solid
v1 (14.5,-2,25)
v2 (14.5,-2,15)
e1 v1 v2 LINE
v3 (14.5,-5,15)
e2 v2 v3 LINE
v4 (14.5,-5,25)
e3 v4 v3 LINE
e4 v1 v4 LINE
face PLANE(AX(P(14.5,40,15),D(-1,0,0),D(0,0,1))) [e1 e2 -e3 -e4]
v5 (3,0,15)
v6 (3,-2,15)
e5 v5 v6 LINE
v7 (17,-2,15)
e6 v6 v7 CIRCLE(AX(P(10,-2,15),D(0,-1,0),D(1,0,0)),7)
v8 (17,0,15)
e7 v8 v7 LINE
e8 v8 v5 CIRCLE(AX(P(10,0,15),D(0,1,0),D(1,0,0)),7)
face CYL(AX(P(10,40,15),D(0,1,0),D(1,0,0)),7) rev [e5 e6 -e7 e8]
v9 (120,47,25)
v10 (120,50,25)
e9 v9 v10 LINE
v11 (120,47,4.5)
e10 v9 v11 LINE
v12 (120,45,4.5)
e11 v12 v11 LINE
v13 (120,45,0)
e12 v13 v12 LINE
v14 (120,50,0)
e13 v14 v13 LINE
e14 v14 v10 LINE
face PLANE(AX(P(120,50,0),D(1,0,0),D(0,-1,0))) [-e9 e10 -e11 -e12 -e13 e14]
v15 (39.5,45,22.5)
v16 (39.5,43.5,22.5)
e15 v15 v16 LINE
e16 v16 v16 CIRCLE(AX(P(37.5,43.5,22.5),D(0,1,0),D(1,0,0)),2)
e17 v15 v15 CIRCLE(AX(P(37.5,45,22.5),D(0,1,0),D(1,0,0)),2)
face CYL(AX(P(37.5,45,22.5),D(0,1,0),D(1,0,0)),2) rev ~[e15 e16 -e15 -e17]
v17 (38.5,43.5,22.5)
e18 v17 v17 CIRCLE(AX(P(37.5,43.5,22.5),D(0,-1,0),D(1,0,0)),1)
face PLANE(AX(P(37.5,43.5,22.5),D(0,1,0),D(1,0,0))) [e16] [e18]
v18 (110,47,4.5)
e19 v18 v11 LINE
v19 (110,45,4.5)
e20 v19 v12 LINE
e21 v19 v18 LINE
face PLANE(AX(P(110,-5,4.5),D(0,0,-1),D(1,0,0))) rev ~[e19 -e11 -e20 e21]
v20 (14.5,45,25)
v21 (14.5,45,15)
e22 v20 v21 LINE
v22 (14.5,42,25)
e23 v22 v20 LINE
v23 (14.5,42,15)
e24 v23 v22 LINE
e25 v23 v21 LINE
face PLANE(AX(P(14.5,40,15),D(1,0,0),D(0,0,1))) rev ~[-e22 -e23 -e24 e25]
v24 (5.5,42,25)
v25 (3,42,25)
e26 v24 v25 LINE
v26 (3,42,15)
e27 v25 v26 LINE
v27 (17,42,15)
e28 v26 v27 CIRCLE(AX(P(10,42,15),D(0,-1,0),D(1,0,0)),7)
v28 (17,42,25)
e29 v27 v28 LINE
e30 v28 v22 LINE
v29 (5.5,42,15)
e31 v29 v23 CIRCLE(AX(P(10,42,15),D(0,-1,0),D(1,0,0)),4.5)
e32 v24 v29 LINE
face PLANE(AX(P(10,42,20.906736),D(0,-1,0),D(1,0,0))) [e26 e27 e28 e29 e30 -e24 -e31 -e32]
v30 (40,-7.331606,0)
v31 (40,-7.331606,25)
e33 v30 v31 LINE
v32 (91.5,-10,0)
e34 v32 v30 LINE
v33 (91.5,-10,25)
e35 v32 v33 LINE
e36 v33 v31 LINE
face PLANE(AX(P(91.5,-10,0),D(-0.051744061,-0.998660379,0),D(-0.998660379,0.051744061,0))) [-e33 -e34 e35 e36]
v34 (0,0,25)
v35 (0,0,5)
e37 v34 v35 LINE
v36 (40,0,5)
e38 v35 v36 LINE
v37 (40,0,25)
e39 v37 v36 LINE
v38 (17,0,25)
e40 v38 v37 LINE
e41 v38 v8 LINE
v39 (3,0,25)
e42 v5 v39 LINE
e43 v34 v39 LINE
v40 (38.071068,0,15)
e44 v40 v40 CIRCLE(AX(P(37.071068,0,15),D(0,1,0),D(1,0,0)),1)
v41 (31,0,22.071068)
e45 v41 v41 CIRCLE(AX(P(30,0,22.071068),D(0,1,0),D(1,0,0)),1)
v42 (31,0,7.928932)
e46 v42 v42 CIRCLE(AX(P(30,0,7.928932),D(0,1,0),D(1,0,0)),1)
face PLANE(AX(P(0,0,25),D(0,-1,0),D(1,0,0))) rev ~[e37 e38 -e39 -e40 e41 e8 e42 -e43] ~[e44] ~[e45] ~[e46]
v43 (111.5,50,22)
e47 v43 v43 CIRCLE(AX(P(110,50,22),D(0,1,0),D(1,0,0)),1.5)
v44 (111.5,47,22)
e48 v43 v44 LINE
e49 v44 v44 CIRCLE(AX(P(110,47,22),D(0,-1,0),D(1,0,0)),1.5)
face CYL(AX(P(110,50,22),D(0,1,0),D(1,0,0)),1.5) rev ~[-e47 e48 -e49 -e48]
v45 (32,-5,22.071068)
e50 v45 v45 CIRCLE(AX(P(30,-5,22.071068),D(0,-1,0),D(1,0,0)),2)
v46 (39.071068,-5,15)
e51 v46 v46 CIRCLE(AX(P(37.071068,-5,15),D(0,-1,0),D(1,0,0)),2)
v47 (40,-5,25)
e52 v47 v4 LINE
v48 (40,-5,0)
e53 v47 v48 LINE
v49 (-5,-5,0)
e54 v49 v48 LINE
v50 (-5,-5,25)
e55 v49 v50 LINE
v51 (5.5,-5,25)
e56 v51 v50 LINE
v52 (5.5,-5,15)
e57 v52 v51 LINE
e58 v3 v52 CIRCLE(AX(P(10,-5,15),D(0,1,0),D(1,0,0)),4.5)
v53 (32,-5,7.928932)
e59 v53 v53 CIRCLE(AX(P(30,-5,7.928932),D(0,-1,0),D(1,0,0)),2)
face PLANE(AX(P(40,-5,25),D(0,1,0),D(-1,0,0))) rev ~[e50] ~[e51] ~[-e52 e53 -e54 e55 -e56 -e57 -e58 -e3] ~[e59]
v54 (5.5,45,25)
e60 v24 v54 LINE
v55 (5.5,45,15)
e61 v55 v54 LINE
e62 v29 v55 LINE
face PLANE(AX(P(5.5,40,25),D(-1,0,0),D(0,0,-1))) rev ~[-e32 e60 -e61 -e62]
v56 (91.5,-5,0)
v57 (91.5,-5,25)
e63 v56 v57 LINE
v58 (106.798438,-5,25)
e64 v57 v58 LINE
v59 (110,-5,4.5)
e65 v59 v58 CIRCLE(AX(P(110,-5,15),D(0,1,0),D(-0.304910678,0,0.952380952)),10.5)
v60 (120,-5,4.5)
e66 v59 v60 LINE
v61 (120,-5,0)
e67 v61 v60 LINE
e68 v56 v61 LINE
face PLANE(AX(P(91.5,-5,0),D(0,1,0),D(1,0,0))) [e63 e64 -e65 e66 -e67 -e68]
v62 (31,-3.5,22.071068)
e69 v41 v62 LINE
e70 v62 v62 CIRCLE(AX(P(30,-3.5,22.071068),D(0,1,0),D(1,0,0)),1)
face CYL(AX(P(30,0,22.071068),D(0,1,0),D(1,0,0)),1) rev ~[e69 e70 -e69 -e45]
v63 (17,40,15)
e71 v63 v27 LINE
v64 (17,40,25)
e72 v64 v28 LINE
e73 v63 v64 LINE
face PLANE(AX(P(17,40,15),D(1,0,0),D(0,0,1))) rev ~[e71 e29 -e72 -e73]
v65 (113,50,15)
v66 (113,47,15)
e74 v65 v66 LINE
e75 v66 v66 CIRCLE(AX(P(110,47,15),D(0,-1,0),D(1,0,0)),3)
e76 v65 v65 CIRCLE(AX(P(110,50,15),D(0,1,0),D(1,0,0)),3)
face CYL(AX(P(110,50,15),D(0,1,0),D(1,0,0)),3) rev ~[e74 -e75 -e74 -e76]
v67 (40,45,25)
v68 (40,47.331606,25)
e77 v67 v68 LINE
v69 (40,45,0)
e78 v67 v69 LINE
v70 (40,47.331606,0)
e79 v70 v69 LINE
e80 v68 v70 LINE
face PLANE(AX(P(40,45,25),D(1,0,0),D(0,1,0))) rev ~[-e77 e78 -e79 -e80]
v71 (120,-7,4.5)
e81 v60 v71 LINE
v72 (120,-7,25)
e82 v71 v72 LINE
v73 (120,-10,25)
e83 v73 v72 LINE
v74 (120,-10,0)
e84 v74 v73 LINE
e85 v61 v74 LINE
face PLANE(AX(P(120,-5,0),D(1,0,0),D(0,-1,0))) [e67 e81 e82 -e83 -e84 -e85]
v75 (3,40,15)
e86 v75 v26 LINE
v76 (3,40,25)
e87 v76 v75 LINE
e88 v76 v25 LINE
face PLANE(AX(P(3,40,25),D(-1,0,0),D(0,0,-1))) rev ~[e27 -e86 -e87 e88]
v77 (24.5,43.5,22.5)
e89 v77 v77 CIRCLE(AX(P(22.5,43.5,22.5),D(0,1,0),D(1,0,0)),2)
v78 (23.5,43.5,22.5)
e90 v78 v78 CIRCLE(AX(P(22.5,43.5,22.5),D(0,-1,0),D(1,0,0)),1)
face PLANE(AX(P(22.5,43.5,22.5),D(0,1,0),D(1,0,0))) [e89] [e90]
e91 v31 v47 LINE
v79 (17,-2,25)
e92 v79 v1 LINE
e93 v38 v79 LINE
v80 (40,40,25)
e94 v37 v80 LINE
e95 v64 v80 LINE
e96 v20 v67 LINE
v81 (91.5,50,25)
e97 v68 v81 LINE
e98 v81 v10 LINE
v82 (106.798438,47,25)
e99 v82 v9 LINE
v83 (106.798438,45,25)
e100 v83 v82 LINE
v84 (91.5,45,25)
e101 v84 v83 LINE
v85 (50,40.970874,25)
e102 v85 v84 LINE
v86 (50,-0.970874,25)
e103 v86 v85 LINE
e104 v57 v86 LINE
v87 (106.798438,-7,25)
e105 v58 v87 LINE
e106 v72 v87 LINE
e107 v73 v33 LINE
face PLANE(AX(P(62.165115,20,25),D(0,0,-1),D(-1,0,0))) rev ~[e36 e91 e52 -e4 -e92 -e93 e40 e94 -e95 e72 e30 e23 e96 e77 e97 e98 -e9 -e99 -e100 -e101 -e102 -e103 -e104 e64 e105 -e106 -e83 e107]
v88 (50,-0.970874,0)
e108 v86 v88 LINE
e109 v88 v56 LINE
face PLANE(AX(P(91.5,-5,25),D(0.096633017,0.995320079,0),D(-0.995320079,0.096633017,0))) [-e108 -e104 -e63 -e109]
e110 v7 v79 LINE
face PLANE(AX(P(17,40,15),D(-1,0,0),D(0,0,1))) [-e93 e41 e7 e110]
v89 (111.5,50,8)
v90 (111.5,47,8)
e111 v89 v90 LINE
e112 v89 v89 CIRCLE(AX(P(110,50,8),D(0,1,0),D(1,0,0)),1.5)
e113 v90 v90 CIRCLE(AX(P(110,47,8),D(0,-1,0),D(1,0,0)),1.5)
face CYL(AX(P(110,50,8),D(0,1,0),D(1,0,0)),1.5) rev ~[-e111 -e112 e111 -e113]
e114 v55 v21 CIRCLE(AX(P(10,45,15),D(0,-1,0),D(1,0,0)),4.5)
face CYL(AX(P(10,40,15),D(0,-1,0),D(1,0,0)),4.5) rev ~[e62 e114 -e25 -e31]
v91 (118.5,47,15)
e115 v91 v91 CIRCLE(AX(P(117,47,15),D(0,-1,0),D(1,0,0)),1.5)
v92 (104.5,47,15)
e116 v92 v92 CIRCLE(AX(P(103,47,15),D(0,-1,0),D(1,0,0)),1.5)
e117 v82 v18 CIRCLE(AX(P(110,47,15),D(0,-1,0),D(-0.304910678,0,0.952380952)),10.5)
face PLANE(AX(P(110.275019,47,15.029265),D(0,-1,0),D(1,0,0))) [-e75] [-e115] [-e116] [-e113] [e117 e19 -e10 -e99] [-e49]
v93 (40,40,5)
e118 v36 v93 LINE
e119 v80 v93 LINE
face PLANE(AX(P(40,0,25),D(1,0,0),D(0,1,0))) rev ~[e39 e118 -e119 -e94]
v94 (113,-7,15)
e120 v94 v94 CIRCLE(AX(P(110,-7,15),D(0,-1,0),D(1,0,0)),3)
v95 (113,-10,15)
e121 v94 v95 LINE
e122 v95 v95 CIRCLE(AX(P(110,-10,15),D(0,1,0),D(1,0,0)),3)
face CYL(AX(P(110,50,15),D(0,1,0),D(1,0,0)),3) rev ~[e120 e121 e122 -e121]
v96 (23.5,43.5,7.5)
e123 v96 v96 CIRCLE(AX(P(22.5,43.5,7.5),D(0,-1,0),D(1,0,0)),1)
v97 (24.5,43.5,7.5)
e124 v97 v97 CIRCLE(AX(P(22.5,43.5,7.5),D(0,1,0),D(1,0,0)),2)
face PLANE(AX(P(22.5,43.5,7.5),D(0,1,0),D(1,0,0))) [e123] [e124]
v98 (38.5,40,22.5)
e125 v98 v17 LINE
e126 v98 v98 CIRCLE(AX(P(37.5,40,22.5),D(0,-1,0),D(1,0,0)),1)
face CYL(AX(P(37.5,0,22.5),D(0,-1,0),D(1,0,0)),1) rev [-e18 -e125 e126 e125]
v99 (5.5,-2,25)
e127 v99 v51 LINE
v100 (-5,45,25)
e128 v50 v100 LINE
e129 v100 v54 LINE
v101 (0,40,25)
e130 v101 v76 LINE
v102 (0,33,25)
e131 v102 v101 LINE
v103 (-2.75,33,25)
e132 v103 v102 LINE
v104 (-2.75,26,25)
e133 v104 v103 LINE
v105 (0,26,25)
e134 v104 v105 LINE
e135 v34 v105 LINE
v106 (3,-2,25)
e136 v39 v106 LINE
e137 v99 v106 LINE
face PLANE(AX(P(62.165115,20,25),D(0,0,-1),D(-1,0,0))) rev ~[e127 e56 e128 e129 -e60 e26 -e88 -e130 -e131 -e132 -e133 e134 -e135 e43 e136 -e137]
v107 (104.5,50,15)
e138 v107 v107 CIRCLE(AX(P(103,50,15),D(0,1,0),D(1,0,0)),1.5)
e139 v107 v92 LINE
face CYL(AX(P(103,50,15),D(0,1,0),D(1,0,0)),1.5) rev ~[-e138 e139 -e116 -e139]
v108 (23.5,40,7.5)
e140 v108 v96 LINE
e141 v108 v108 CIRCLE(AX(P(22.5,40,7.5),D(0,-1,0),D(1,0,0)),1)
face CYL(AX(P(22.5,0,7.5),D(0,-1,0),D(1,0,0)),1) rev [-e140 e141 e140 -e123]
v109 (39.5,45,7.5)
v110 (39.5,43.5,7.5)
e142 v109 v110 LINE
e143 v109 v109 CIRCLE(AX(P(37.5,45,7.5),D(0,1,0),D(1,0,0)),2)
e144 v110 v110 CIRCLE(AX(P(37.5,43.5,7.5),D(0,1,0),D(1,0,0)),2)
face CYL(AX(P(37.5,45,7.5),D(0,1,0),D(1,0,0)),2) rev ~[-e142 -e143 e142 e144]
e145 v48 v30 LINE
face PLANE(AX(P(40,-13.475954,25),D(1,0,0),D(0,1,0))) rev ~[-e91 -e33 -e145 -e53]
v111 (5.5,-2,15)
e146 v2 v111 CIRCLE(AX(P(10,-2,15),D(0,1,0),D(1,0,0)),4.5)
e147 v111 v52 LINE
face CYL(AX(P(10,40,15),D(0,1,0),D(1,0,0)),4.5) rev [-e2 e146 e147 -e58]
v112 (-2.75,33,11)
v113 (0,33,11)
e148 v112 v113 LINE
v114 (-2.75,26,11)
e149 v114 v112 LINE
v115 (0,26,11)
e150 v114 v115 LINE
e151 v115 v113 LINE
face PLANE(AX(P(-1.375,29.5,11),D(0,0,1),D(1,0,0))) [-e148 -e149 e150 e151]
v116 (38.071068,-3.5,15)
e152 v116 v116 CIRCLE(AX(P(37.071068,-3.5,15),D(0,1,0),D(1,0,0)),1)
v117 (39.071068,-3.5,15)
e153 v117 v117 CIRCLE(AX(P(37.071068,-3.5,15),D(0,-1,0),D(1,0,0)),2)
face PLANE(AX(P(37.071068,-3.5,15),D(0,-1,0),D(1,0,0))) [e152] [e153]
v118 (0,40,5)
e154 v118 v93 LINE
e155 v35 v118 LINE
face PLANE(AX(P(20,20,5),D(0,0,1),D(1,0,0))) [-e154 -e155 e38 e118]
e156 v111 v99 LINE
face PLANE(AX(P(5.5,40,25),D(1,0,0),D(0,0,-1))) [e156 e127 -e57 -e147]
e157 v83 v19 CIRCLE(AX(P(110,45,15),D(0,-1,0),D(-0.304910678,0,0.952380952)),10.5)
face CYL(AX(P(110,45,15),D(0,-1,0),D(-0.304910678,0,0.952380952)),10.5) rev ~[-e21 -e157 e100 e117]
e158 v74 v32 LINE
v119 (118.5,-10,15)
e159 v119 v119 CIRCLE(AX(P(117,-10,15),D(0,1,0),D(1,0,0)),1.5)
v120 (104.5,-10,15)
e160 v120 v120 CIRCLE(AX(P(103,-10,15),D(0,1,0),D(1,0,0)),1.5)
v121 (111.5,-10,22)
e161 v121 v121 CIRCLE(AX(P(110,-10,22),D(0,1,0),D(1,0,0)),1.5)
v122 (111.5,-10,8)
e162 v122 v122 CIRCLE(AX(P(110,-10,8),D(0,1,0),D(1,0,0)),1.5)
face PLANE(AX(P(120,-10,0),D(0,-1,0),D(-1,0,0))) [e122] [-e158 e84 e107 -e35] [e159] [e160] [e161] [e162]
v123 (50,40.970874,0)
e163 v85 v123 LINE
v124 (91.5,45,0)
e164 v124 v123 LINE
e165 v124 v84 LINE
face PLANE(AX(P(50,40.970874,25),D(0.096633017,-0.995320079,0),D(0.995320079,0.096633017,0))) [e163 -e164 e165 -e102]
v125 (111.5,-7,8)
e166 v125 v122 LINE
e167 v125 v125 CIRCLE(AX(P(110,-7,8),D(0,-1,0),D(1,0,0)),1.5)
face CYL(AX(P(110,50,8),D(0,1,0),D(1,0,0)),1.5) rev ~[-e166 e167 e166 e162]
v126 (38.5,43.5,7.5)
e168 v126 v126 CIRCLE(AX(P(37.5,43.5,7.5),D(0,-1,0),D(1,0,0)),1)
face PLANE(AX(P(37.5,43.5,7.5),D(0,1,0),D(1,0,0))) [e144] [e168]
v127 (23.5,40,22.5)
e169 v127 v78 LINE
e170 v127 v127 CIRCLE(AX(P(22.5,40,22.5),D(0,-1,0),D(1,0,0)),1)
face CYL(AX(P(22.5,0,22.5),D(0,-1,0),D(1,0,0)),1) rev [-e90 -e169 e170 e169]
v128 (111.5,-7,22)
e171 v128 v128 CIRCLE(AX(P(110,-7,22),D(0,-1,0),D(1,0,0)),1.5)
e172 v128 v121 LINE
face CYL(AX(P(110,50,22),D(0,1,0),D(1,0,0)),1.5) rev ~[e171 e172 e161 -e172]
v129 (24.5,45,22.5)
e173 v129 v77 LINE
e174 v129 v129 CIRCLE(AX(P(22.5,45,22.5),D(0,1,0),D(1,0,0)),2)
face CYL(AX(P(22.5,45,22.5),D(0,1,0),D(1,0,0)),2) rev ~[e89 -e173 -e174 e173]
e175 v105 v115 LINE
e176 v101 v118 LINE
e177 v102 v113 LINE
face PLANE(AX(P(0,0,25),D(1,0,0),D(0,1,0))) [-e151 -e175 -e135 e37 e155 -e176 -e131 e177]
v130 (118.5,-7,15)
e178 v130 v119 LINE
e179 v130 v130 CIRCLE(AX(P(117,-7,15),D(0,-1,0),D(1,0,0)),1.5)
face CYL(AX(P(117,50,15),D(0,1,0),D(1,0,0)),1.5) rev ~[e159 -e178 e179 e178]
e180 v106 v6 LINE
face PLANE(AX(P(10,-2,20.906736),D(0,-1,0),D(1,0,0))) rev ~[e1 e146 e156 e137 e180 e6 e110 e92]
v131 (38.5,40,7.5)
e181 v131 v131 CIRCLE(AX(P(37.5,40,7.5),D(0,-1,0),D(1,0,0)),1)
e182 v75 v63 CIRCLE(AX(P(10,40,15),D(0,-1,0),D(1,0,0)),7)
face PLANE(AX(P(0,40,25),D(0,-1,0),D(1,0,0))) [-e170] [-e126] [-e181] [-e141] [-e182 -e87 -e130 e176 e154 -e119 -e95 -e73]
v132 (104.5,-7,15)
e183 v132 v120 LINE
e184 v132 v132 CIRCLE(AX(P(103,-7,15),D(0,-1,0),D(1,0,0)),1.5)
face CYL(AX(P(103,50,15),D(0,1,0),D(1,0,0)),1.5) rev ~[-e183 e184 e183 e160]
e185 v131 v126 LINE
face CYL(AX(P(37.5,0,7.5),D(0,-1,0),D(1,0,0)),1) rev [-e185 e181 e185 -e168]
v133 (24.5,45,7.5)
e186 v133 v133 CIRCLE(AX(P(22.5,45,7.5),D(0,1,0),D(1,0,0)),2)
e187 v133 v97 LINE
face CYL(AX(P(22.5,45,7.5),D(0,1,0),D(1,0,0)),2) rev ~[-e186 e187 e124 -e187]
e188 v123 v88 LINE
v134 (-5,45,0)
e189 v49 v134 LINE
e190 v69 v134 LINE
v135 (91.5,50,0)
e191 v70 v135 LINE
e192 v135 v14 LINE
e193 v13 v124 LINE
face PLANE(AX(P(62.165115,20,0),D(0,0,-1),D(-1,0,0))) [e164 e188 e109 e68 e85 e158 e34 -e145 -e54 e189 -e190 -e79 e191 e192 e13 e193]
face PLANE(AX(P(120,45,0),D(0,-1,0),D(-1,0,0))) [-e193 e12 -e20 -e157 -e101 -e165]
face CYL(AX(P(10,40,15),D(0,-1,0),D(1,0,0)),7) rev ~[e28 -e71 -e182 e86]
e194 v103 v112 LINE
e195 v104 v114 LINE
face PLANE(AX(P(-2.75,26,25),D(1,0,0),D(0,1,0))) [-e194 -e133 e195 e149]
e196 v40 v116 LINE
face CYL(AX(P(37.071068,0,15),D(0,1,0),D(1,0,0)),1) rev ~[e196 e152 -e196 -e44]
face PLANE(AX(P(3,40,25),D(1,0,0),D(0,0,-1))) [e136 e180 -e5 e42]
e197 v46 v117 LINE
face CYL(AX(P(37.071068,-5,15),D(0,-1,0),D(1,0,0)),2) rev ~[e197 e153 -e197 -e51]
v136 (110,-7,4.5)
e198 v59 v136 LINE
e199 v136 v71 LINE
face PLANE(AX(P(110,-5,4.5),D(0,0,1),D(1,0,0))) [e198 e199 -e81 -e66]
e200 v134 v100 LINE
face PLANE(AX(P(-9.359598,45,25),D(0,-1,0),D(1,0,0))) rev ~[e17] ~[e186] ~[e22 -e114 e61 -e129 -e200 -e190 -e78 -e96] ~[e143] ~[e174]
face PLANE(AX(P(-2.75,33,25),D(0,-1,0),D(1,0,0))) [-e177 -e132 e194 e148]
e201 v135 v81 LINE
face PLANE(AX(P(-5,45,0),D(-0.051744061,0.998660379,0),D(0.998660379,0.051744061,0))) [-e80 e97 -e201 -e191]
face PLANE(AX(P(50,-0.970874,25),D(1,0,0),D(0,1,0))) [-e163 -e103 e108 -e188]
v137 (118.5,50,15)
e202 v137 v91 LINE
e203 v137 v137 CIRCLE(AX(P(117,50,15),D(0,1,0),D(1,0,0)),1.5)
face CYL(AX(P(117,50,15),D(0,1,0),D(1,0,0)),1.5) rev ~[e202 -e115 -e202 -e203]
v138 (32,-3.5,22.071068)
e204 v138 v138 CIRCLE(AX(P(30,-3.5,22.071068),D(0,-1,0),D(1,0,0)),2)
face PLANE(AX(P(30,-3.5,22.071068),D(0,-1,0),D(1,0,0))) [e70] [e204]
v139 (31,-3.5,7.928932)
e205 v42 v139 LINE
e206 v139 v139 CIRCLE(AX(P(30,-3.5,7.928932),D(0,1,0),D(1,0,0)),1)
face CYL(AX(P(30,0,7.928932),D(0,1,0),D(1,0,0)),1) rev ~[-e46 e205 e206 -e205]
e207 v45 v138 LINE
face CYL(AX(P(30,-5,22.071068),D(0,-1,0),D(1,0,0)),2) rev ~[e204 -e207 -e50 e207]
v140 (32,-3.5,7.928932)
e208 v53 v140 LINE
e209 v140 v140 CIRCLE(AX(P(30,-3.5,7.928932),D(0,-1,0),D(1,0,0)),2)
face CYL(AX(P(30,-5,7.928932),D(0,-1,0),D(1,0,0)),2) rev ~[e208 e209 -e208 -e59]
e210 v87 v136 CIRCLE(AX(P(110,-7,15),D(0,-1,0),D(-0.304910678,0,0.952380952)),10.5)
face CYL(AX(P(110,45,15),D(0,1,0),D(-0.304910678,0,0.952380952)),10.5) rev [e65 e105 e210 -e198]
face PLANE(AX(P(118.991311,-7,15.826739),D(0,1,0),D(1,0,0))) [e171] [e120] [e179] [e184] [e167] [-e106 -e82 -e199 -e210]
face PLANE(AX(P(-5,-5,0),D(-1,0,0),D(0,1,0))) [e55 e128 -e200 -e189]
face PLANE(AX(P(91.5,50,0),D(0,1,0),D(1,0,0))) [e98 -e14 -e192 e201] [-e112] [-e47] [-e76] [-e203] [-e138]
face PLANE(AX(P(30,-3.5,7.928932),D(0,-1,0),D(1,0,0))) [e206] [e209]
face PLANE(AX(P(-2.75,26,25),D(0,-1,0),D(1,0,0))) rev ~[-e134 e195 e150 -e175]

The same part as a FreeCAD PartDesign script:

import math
import FreeCAD as App
import Part
import Sketcher

V = App.Vector

doc = App.newDocument("Part")
body = doc.addObject("PartDesign::Body", "Body")

# Sketch on XY plane
sketch1 = doc.addObject("Sketcher::SketchObject", "Sketch")
body.addObject(sketch1)
sketch1.AttachmentSupport = (doc.XY_Plane, [""])
sketch1.MapMode = "FlatFace"
sketch1.addGeometry([
    Part.LineSegment(V(92, 50, 0), V(-5, 45, 0)),  # 0
    Part.LineSegment(V(-5, 45, 0), V(-5, -5, 0)),  # 1
    Part.LineSegment(V(-5, -5, 0), V(92, -10, 0)),  # 2
    Part.LineSegment(V(92, -10, 0), V(120, -10, 0)),  # 3
    Part.LineSegment(V(120, -10, 0), V(120, -5, 0)),  # 4
    Part.LineSegment(V(120, -5, 0), V(92, -5, 0)),  # 5
    Part.LineSegment(V(92, -5, 0), V(92, 45, 0)),  # 6
    Part.LineSegment(V(92, 45, 0), V(120, 45, 0)),  # 7
    Part.LineSegment(V(120, 45, 0), V(120, 50, 0)),  # 8
    Part.LineSegment(V(120, 50, 0), V(92, 50, 0)),  # 9
], False)
sketch1.addConstraint([
    Sketcher.Constraint("Coincident", 0, 2, 1, 1),
    Sketcher.Constraint("Coincident", 1, 2, 2, 1),
    Sketcher.Constraint("Coincident", 2, 2, 3, 1),
    Sketcher.Constraint("Coincident", 3, 2, 4, 1),
    Sketcher.Constraint("Coincident", 4, 2, 5, 1),
    Sketcher.Constraint("Coincident", 5, 2, 6, 1),
    Sketcher.Constraint("Coincident", 6, 2, 7, 1),
    Sketcher.Constraint("Coincident", 7, 2, 8, 1),
    Sketcher.Constraint("Coincident", 8, 2, 9, 1),
    Sketcher.Constraint("Coincident", 9, 2, 0, 1),
    Sketcher.Constraint("Vertical", 1),
    Sketcher.Constraint("Horizontal", 3),
    Sketcher.Constraint("Vertical", 4),
    Sketcher.Constraint("Horizontal", 5),
    Sketcher.Constraint("Vertical", 6),
    Sketcher.Constraint("Horizontal", 7),
    Sketcher.Constraint("Vertical", 8),
    Sketcher.Constraint("Horizontal", 9),
    Sketcher.Constraint("Horizontal", 1, 2, 4, 2),
    Sketcher.Constraint("Horizontal", 0, 2, 6, 2),
    Sketcher.Constraint("Vertical", 2, 2, 5, 2),
    Sketcher.Constraint("Vertical", 4, 2, 7, 2),
    Sketcher.Constraint("Vertical", 6, 2, 9, 2),
    Sketcher.Constraint("Equal", 4, 8),
    Sketcher.Constraint("DistanceY", 1, 2, 1, 1, 50.0),
    Sketcher.Constraint("DistanceY", 4, 1, 4, 2, 5.0),
    Sketcher.Constraint("DistanceX", 3, 1, 3, 2, 28.5),
    Sketcher.Constraint("DistanceX", 0, 2, -1, 1, 5.0),
    Sketcher.Constraint("DistanceY", -1, 1, 0, 2, 45.0),
    Sketcher.Constraint("DistanceX", -1, 1, 3, 2, 120.0),
])
pad1 = doc.addObject("PartDesign::Pad", "Pad")
body.addObject(pad1)
pad1.Profile = sketch1
pad1.Length = 25

# Sketch on XY plane
sketch2 = doc.addObject("Sketcher::SketchObject", "Sketch001")
body.addObject(sketch2)
sketch2.AttachmentSupport = (doc.XY_Plane, [""])
sketch2.MapMode = "FlatFace"
sketch2.AttachmentOffset = App.Placement(V(0, 0, 25), App.Rotation())
sketch2.addGeometry([
    Part.LineSegment(V(0, 40, 0), V(0, 0, 0)),
    Part.LineSegment(V(0, 0, 0), V(40, 0, 0)),
    Part.LineSegment(V(40, 0, 0), V(40, 40, 0)),
    Part.LineSegment(V(40, 40, 0), V(0, 40, 0)),
], False)
sketch2.addConstraint([
    Sketcher.Constraint("Coincident", 0, 2, 1, 1),
    Sketcher.Constraint("Coincident", 1, 2, 2, 1),
    Sketcher.Constraint("Coincident", 2, 2, 3, 1),
    Sketcher.Constraint("Coincident", 3, 2, 0, 1),
    Sketcher.Constraint("Vertical", 0),
    Sketcher.Constraint("Horizontal", 1),
    Sketcher.Constraint("Vertical", 2),
    Sketcher.Constraint("Horizontal", 3),
    Sketcher.Constraint("Coincident", 0, 2, -1, 1),
    Sketcher.Constraint("Equal", 3, 0),
    Sketcher.Constraint("DistanceX", 1, 1, 1, 2, 40.0),
])
pocket1 = doc.addObject("PartDesign::Pocket", "Pocket")
body.addObject(pocket1)
pocket1.Profile = sketch2
pocket1.Length = 20

# Sketch on XZ plane
sketch3 = doc.addObject("Sketcher::SketchObject", "Sketch002")
body.addObject(sketch3)
sketch3.AttachmentSupport = (doc.XZ_Plane, [""])
sketch3.MapMode = "FlatFace"
sketch3.AttachmentOffset = App.Placement(V(0, 0, -40), App.Rotation())
sketch3.addGeometry([
    Part.LineSegment(V(17, 15, 0), V(17, 25, 0)),
    Part.LineSegment(V(17, 25, 0), V(3, 25, 0)),
    Part.LineSegment(V(3, 25, 0), V(3, 15, 0)),
    Part.ArcOfCircle(Part.Circle(V(10, 15, 0), V(0, 0, 1), 7), math.radians(180), math.radians(360)),
], False)
sketch3.addConstraint([
    Sketcher.Constraint("Coincident", 0, 2, 1, 1),
    Sketcher.Constraint("Coincident", 1, 2, 2, 1),
    Sketcher.Constraint("Tangent", 2, 2, 3, 1),
    Sketcher.Constraint("Tangent", 3, 2, 0, 1),
    Sketcher.Constraint("Vertical", 0),
    Sketcher.Constraint("Horizontal", 1),
    Sketcher.Constraint("Vertical", 2),
    Sketcher.Constraint("Radius", 3, 7.0),
    Sketcher.Constraint("DistanceY", 0, 1, 0, 2, 10.0),
    Sketcher.Constraint("DistanceX", -1, 1, 3, 3, 10.0),
    Sketcher.Constraint("DistanceY", -1, 1, 3, 3, 15.0),
])
pocket2 = doc.addObject("PartDesign::Pocket", "Pocket001")
body.addObject(pocket2)
pocket2.Profile = sketch3
pocket2.Type = "TwoLengths"
pocket2.Length = 42
pocket2.Length2 = 2
pocket2.Reversed = True

# Sketch on XZ plane
sketch4 = doc.addObject("Sketcher::SketchObject", "Sketch003")
body.addObject(sketch4)
sketch4.AttachmentSupport = (doc.XZ_Plane, [""])
sketch4.MapMode = "FlatFace"
sketch4.AttachmentOffset = App.Placement(V(0, 0, -40), App.Rotation())
sketch4.addGeometry([
    Part.ArcOfCircle(Part.Circle(V(10, 15, 0), V(0, 0, 1), 4.5), math.radians(180), math.radians(360)),
    Part.LineSegment(V(14.5, 15, 0), V(14.5, 25, 0)),
    Part.LineSegment(V(14.5, 25, 0), V(5.5, 25, 0)),
    Part.LineSegment(V(5.5, 25, 0), V(5.5, 15, 0)),
], False)
sketch4.addConstraint([
    Sketcher.Constraint("Tangent", 0, 2, 1, 1),
    Sketcher.Constraint("Coincident", 1, 2, 2, 1),
    Sketcher.Constraint("Coincident", 2, 2, 3, 1),
    Sketcher.Constraint("Tangent", 3, 2, 0, 1),
    Sketcher.Constraint("Vertical", 1),
    Sketcher.Constraint("Horizontal", 2),
    Sketcher.Constraint("Vertical", 3),
    Sketcher.Constraint("Radius", 0, 4.5),
    Sketcher.Constraint("DistanceY", 1, 1, 1, 2, 10.0),
    Sketcher.Constraint("DistanceX", -1, 1, 0, 3, 10.0),
    Sketcher.Constraint("DistanceY", -1, 1, 0, 3, 15.0),
])
pocket3 = doc.addObject("PartDesign::Pocket", "Pocket002")
body.addObject(pocket3)
pocket3.Profile = sketch4
pocket3.Type = "ThroughAll"
pocket3.Midplane = True

# Sketch on XY plane
sketch5 = doc.addObject("Sketcher::SketchObject", "Sketch004")
body.addObject(sketch5)
sketch5.AttachmentSupport = (doc.XY_Plane, [""])
sketch5.MapMode = "FlatFace"
sketch5.AttachmentOffset = App.Placement(V(0, 0, 25), App.Rotation())
sketch5.addGeometry([
    Part.LineSegment(V(50, -1, 0), V(91.5, -5, 0)),  # 0
    Part.LineSegment(V(91.5, -5, 0), V(91.5, 45, 0)),  # 1
    Part.LineSegment(V(91.5, 45, 0), V(50, 41, 0)),  # 2
    Part.LineSegment(V(50, 41, 0), V(50, -1, 0)),  # 3
    Part.LineSegment(V(40, 45, 0), V(40, 47.3, 0)),  # 4
    Part.LineSegment(V(40, 47.3, 0), V(0.6, 66, 0)),  # 5
    Part.LineSegment(V(0.6, 66, 0), V(-9.4, 45, 0)),  # 6
    Part.LineSegment(V(-9.4, 45, 0), V(40, 45, 0)),  # 7
    Part.LineSegment(V(40, -5, 0), V(-5, -5, 0)),  # 8
    Part.LineSegment(V(-5, -5, 0), V(-6.2, -9.2, 0)),  # 9
    Part.LineSegment(V(-6.2, -9.2, 0), V(40, -13.5, 0)),  # 10
    Part.LineSegment(V(40, -13.5, 0), V(40, -5, 0)),  # 11
], False)
sketch5.addConstraint([
    Sketcher.Constraint("Coincident", 0, 2, 1, 1),
    Sketcher.Constraint("Coincident", 1, 2, 2, 1),
    Sketcher.Constraint("Coincident", 2, 2, 3, 1),
    Sketcher.Constraint("Coincident", 3, 2, 0, 1),
    Sketcher.Constraint("Coincident", 4, 2, 5, 1),
    Sketcher.Constraint("Coincident", 5, 2, 6, 1),
    Sketcher.Constraint("Coincident", 6, 2, 7, 1),
    Sketcher.Constraint("Coincident", 7, 2, 4, 1),
    Sketcher.Constraint("Coincident", 8, 2, 9, 1),
    Sketcher.Constraint("Coincident", 9, 2, 10, 1),
    Sketcher.Constraint("Coincident", 10, 2, 11, 1),
    Sketcher.Constraint("Coincident", 11, 2, 8, 1),
    Sketcher.Constraint("Vertical", 1),
    Sketcher.Constraint("Vertical", 3),
    Sketcher.Constraint("Vertical", 4),
    Sketcher.Constraint("Horizontal", 7),
    Sketcher.Constraint("Horizontal", 8),
    Sketcher.Constraint("Vertical", 11),
    Sketcher.Constraint("Perpendicular", 5, 6),
    Sketcher.Constraint("Horizontal", 1, 2, 6, 2),
    Sketcher.Constraint("Horizontal", 0, 2, 8, 2),
    Sketcher.Constraint("Vertical", 7, 2, 10, 2),
    Sketcher.Constraint("Equal", 0, 2),
    Sketcher.Constraint("DistanceX", 8, 2, 8, 1, 45.0),
    Sketcher.Constraint("DistanceY", 1, 1, 1, 2, 50.0),
    Sketcher.Constraint("DistanceY", 0, 2, -1, 1, 5.0),
    Sketcher.Constraint("DistanceX", -1, 1, 2, 2, 50.0),
    Sketcher.Constraint("DistanceX", -1, 1, 4, 2, 40.0),
    Sketcher.Constraint("DistanceX", -1, 1, 0, 2, 91.5),
    Sketcher.Constraint("Distance", 0, 41.69513),
    Sketcher.Constraint("Distance", 6, 23.270611),
    Sketcher.Constraint("Distance", 9, 4.413391),
    Sketcher.Constraint("DistanceX", 7, 1, 7, 2, 49.359598),
    Sketcher.Constraint("DistanceY", 4, 1, 4, 2, 2.331606),
    Sketcher.Constraint("DistanceY", 11, 1, 11, 2, 8.475954),
    Sketcher.Constraint("DistanceY", 9, 2, -1, 1, 9.24134),
])
pocket4 = doc.addObject("PartDesign::Pocket", "Pocket003")
body.addObject(pocket4)
pocket4.Profile = sketch5
pocket4.Type = "ThroughAll"

# Sketch on XZ plane
sketch6 = doc.addObject("Sketcher::SketchObject", "Sketch005")
body.addObject(sketch6)
sketch6.AttachmentSupport = (doc.XZ_Plane, [""])
sketch6.MapMode = "FlatFace"
sketch6.AttachmentOffset = App.Placement(V(0, 0, -50), App.Rotation())
sketch6.addGeometry([
    Part.Circle(V(110, 8, 0), V(0, 0, 1), 1.5),  # 0
    Part.Circle(V(110, 15, 0), V(0, 0, 1), 3),  # 1
    Part.Circle(V(117, 15, 0), V(0, 0, 1), 1.5),  # 2
    Part.Circle(V(110, 22, 0), V(0, 0, 1), 1.5),  # 3
    Part.Circle(V(103, 15, 0), V(0, 0, 1), 1.5),  # 4
], False)
sketch6.addConstraint([
    Sketcher.Constraint("Equal", 0, 2),
    Sketcher.Constraint("Equal", 2, 3),
    Sketcher.Constraint("Equal", 3, 4),
    Sketcher.Constraint("Horizontal", 1, 3, 2, 3),
    Sketcher.Constraint("Horizontal", 2, 3, 4, 3),
    Sketcher.Constraint("Vertical", 0, 3, 1, 3),
    Sketcher.Constraint("Vertical", 1, 3, 3, 3),
    Sketcher.Constraint("Diameter", 0, 3.0),
    Sketcher.Constraint("Diameter", 1, 6.0),
    Sketcher.Constraint("DistanceX", -1, 1, 0, 3, 110.0),
    Sketcher.Constraint("DistanceY", -1, 1, 0, 3, 8.0),
    Sketcher.Constraint("DistanceY", -1, 1, 1, 3, 15.0),
    Sketcher.Constraint("DistanceX", -1, 1, 2, 3, 117.0),
    Sketcher.Constraint("DistanceY", -1, 1, 3, 3, 22.0),
    Sketcher.Constraint("DistanceX", -1, 1, 4, 3, 103.0),
])
pocket5 = doc.addObject("PartDesign::Pocket", "Pocket004")
body.addObject(pocket5)
pocket5.Profile = sketch6
pocket5.Length = 61
pocket5.Reversed = True

# Sketch on XZ plane
sketch7 = doc.addObject("Sketcher::SketchObject", "Sketch006")
body.addObject(sketch7)
sketch7.AttachmentSupport = (doc.XZ_Plane, [""])
sketch7.MapMode = "FlatFace"
sketch7.AttachmentOffset = App.Placement(V(0, 0, -45), App.Rotation())
sketch7.addGeometry([
    Part.ArcOfCircle(Part.Circle(V(110, 15, 0), V(0, 0, 1), 10.5), math.radians(18), math.radians(72)),  # 0
    Part.LineSegment(V(113.2, 25, 0), V(106.8, 25, 0)),  # 1
    Part.ArcOfCircle(Part.Circle(V(110, 15, 0), V(0, 0, 1), 10.5), math.radians(108), math.radians(270)),  # 2
    Part.ArcOfCircle(Part.Circle(V(110, 15, 0), V(0, 0, 1), 10.5), math.radians(-90), math.radians(-18)),  # 3
    Part.LineSegment(V(120, 11.8, 0), V(120, 18.2, 0)),  # 4
    Part.Circle(V(110, 8, 0), V(0, 0, 1), 1.5),  # 5
    Part.Circle(V(103, 15, 0), V(0, 0, 1), 1.5),  # 6
    Part.Circle(V(110, 15, 0), V(0, 0, 1), 3),  # 7
    Part.Circle(V(117, 15, 0), V(0, 0, 1), 1.5),  # 8
    Part.Circle(V(110, 22, 0), V(0, 0, 1), 1.5),  # 9
    Part.LineSegment(V(132.3, 25.5, 0), V(110, 25.5, 0)),  # 10
    Part.ArcOfCircle(Part.Circle(V(110, 15, 0), V(0, 0, 1), 10.5), math.radians(72.25), math.radians(90)),  # 11
    Part.LineSegment(V(113.2, 25, 0), V(120, 25, 0)),  # 12
    Part.LineSegment(V(120, 25, 0), V(120, 18.2, 0)),  # 13
    Part.ArcOfCircle(Part.Circle(V(110, 15, 0), V(0, 0, 1), 10.5), math.radians(0), math.radians(17.75)),  # 14
    Part.ArcOfCircle(Part.Circle(V(110, 15, 0), V(0, 0, 1), 10.5), math.radians(-17.75), math.radians(0)),  # 15
    Part.LineSegment(V(120, 11.8, 0), V(120, 4.5, 0)),  # 16
    Part.LineSegment(V(120, 4.5, 0), V(132.3, 4.5, 0)),  # 17
    Part.LineSegment(V(132.3, 4.5, 0), V(132.3, 25.5, 0)),  # 18
], False)
sketch7.addConstraint([
    Sketcher.Constraint("Coincident", 0, 2, 1, 1),
    Sketcher.Constraint("Coincident", 1, 2, 2, 1),
    Sketcher.Constraint("Tangent", 2, 2, 3, 1),
    Sketcher.Constraint("Coincident", 3, 2, 4, 1),
    Sketcher.Constraint("Coincident", 4, 2, 0, 1),
    Sketcher.Constraint("Tangent", 10, 2, 11, 2),
    Sketcher.Constraint("Coincident", 11, 1, 12, 1),
    Sketcher.Constraint("Coincident", 12, 2, 13, 1),
    Sketcher.Constraint("Coincident", 13, 2, 14, 2),
    Sketcher.Constraint("Tangent", 14, 1, 15, 2),
    Sketcher.Constraint("Coincident", 15, 1, 16, 1),
    Sketcher.Constraint("Coincident", 16, 2, 17, 1),
    Sketcher.Constraint("Coincident", 17, 2, 18, 1),
    Sketcher.Constraint("Coincident", 18, 2, 10, 1),
    Sketcher.Constraint("Horizontal", 1),
    Sketcher.Constraint("Vertical", 4),
    Sketcher.Constraint("Horizontal", 10),
    Sketcher.Constraint("Horizontal", 12),
    Sketcher.Constraint("Vertical", 13),
    Sketcher.Constraint("Vertical", 16),
    Sketcher.Constraint("Horizontal", 17),
    Sketcher.Constraint("Vertical", 18),
    Sketcher.Constraint("Coincident", 2, 3, 0, 3),
    Sketcher.Constraint("Coincident", 7, 3, 0, 3),
    Sketcher.Constraint("Coincident", 11, 3, 0, 3),
    Sketcher.Constraint("Coincident", 14, 3, 0, 3),
    Sketcher.Constraint("Coincident", 11, 1, 0, 2),
    Sketcher.Constraint("Coincident", 13, 2, 4, 2),
    Sketcher.Constraint("Coincident", 15, 1, 3, 2),
    Sketcher.Constraint("Equal", 0, 2),
    Sketcher.Constraint("Equal", 2, 3),
    Sketcher.Constraint("Equal", 5, 6),
    Sketcher.Constraint("Equal", 6, 8),
    Sketcher.Constraint("Equal", 8, 9),
    Sketcher.Constraint("Horizontal", 3, 3, 6, 3),
    Sketcher.Constraint("Horizontal", 7, 3, 8, 3),
    Sketcher.Constraint("Horizontal", 15, 3, 14, 1),
    Sketcher.Constraint("Horizontal", 2, 2, 16, 2),
    Sketcher.Constraint("Vertical", 3, 3, 5, 3),
    Sketcher.Constraint("Vertical", 7, 3, 9, 3),
    Sketcher.Constraint("Vertical", 15, 3, 2, 2),
    Sketcher.Constraint("Equal", 1, 4),
    Sketcher.Constraint("Diameter", 5, 3.0),
    Sketcher.Constraint("Diameter", 7, 6.0),
    Sketcher.Constraint("Radius", 0, 10.5),
    Sketcher.Constraint("DistanceX", -1, 1, 0, 3, 110.0),
    Sketcher.Constraint("DistanceY", -1, 1, 0, 3, 15.0),
    Sketcher.Constraint("DistanceY", -1, 1, 5, 3, 8.0),
    Sketcher.Constraint("DistanceX", -1, 1, 6, 3, 103.0),
    Sketcher.Constraint("DistanceX", -1, 1, 8, 3, 117.0),
    Sketcher.Constraint("DistanceY", -1, 1, 9, 3, 22.0),
    Sketcher.Constraint("DistanceY", -1, 1, 0, 2, 25.0),
    Sketcher.Constraint("DistanceX", 10, 2, 10, 1, 22.305372),
])
pocket6 = doc.addObject("PartDesign::Pocket", "Pocket005")
body.addObject(pocket6)
pocket6.Profile = sketch7
pocket6.Type = "TwoLengths"
pocket6.Length = 52
pocket6.Length2 = 2
pocket6.Reversed = True

# Sketch on XZ plane
sketch8 = doc.addObject("Sketcher::SketchObject", "Sketch007")
body.addObject(sketch8)
sketch8.AttachmentSupport = (doc.XZ_Plane, [""])
sketch8.MapMode = "FlatFace"
sketch8.AttachmentOffset = App.Placement(V(0, 0, 5), App.Rotation())
sketch8.addGeometry([
    Part.LineSegment(V(110, 4, 0), V(110, 27, 0)),
    Part.LineSegment(V(110, 27, 0), V(128, 27, 0)),
    Part.LineSegment(V(128, 27, 0), V(128, 4, 0)),
    Part.LineSegment(V(128, 4, 0), V(110, 4, 0)),
], False)
sketch8.addConstraint([
    Sketcher.Constraint("Coincident", 0, 2, 1, 1),
    Sketcher.Constraint("Coincident", 1, 2, 2, 1),
    Sketcher.Constraint("Coincident", 2, 2, 3, 1),
    Sketcher.Constraint("Coincident", 3, 2, 0, 1),
    Sketcher.Constraint("Vertical", 0),
    Sketcher.Constraint("Horizontal", 1),
    Sketcher.Constraint("Vertical", 2),
    Sketcher.Constraint("Horizontal", 3),
    Sketcher.Constraint("DistanceX", -1, 1, 0, 2, 110.0),
    Sketcher.Constraint("DistanceY", -1, 1, 2, 2, 4.5),
    Sketcher.Constraint("DistanceX", 1, 1, 1, 2, 17.982621),
    Sketcher.Constraint("DistanceY", 0, 1, 0, 2, 22.653479),
])
pocket7 = doc.addObject("PartDesign::Pocket", "Pocket006")
body.addObject(pocket7)
pocket7.Profile = sketch8
pocket7.Type = "TwoLengths"
pocket7.Length = 52
pocket7.Length2 = 2

# Sketch on XZ plane
sketch9 = doc.addObject("Sketcher::SketchObject", "Sketch008")
body.addObject(sketch9)
sketch9.AttachmentSupport = (doc.XZ_Plane, [""])
sketch9.MapMode = "FlatFace"
sketch9.addGeometry([
    Part.Circle(V(37.5, 7.5, 0), V(0, 0, 1), 1),
    Part.Circle(V(37.5, 22.5, 0), V(0, 0, 1), 1),
    Part.Circle(V(22.5, 22.5, 0), V(0, 0, 1), 1),
    Part.Circle(V(22.5, 7.5, 0), V(0, 0, 1), 1),
], False)
sketch9.addConstraint([
    Sketcher.Constraint("Equal", 0, 1),
    Sketcher.Constraint("Equal", 1, 2),
    Sketcher.Constraint("Equal", 2, 3),
    Sketcher.Constraint("Horizontal", 1, 3, 2, 3),
    Sketcher.Constraint("Horizontal", 0, 3, 3, 3),
    Sketcher.Constraint("Vertical", 0, 3, 1, 3),
    Sketcher.Constraint("Vertical", 2, 3, 3, 3),
    Sketcher.Constraint("Diameter", 0, 2.0),
    Sketcher.Constraint("DistanceY", 0, 3, 1, 3, 15.0),
    Sketcher.Constraint("DistanceX", 2, 3, 1, 3, 15.0),
    Sketcher.Constraint("DistanceX", -1, 1, 0, 3, 37.5),
    Sketcher.Constraint("DistanceY", -1, 1, 0, 3, 7.5),
])
pocket8 = doc.addObject("PartDesign::Pocket", "Pocket007")
body.addObject(pocket8)
pocket8.Profile = sketch9
pocket8.Length = 70

# Sketch on XZ plane
sketch10 = doc.addObject("Sketcher::SketchObject", "Sketch009")
body.addObject(sketch10)
sketch10.AttachmentSupport = (doc.XZ_Plane, [""])
sketch10.MapMode = "FlatFace"
sketch10.addGeometry([
    Part.Circle(V(37.1, 15, 0), V(0, 0, 1), 1),
    Part.Circle(V(30, 7.9, 0), V(0, 0, 1), 1),
    Part.Circle(V(30, 22.1, 0), V(0, 0, 1), 1),
], False)
sketch10.addConstraint([
    Sketcher.Constraint("Equal", 0, 1),
    Sketcher.Constraint("Equal", 1, 2),
    Sketcher.Constraint("Vertical", 1, 3, 2, 3),
    Sketcher.Constraint("Diameter", 0, 2.0),
    Sketcher.Constraint("DistanceY", -1, 1, 0, 3, 15.0),
    Sketcher.Constraint("DistanceX", -1, 1, 1, 3, 30.0),
    Sketcher.Constraint("DistanceX", -1, 1, 0, 3, 37.071068),
    Sketcher.Constraint("DistanceY", -1, 1, 1, 3, 7.928932),
    Sketcher.Constraint("DistanceY", -1, 1, 2, 3, 22.071068),
])
pocket9 = doc.addObject("PartDesign::Pocket", "Pocket008")
body.addObject(pocket9)
pocket9.Profile = sketch10
pocket9.Length = 70
pocket9.Reversed = True

# Sketch on XZ plane
sketch11 = doc.addObject("Sketcher::SketchObject", "Sketch010")
body.addObject(sketch11)
sketch11.AttachmentSupport = (doc.XZ_Plane, [""])
sketch11.MapMode = "FlatFace"
sketch11.AttachmentOffset = App.Placement(V(0, 0, -45), App.Rotation())
sketch11.addGeometry([
    Part.Circle(V(22.5, 7.5, 0), V(0, 0, 1), 2),
    Part.Circle(V(37.5, 7.5, 0), V(0, 0, 1), 2),
    Part.Circle(V(37.5, 22.5, 0), V(0, 0, 1), 2),
    Part.Circle(V(22.5, 22.5, 0), V(0, 0, 1), 2),
], False)
sketch11.addConstraint([
    Sketcher.Constraint("Equal", 0, 1),
    Sketcher.Constraint("Equal", 1, 2),
    Sketcher.Constraint("Equal", 2, 3),
    Sketcher.Constraint("Horizontal", 0, 3, 1, 3),
    Sketcher.Constraint("Horizontal", 2, 3, 3, 3),
    Sketcher.Constraint("Vertical", 1, 3, 2, 3),
    Sketcher.Constraint("Vertical", 0, 3, 3, 3),
    Sketcher.Constraint("Diameter", 0, 4.0),
    Sketcher.Constraint("DistanceX", 0, 3, 1, 3, 15.0),
    Sketcher.Constraint("DistanceY", 1, 3, 2, 3, 15.0),
    Sketcher.Constraint("DistanceX", -1, 1, 0, 3, 22.5),
    Sketcher.Constraint("DistanceY", -1, 1, 0, 3, 7.5),
])
pocket10 = doc.addObject("PartDesign::Pocket", "Pocket009")
body.addObject(pocket10)
pocket10.Profile = sketch11
pocket10.Length = 1.5
pocket10.Reversed = True

# Sketch on XZ plane
sketch12 = doc.addObject("Sketcher::SketchObject", "Sketch011")
body.addObject(sketch12)
sketch12.AttachmentSupport = (doc.XZ_Plane, [""])
sketch12.MapMode = "FlatFace"
sketch12.AttachmentOffset = App.Placement(V(0, 0, 5), App.Rotation())
sketch12.addGeometry([
    Part.Circle(V(30, 22.1, 0), V(0, 0, 1), 2),
    Part.Circle(V(37.1, 15, 0), V(0, 0, 1), 2),
    Part.Circle(V(30, 7.9, 0), V(0, 0, 1), 2),
], False)
sketch12.addConstraint([
    Sketcher.Constraint("Equal", 0, 1),
    Sketcher.Constraint("Equal", 1, 2),
    Sketcher.Constraint("Vertical", 0, 3, 2, 3),
    Sketcher.Constraint("Diameter", 0, 4.0),
    Sketcher.Constraint("DistanceX", -1, 1, 0, 3, 30.0),
    Sketcher.Constraint("DistanceY", -1, 1, 1, 3, 15.0),
    Sketcher.Constraint("DistanceY", -1, 1, 0, 3, 22.071068),
    Sketcher.Constraint("DistanceX", -1, 1, 1, 3, 37.071068),
    Sketcher.Constraint("DistanceY", -1, 1, 2, 3, 7.928932),
])
pocket11 = doc.addObject("PartDesign::Pocket", "Pocket010")
body.addObject(pocket11)
pocket11.Profile = sketch12
pocket11.Length = 1.5

# Sketch on XY plane
sketch13 = doc.addObject("Sketcher::SketchObject", "Sketch012")
body.addObject(sketch13)
sketch13.AttachmentSupport = (doc.XY_Plane, [""])
sketch13.MapMode = "FlatFace"
sketch13.AttachmentOffset = App.Placement(V(0, 0, 25), App.Rotation())
sketch13.addGeometry([
    Part.LineSegment(V(-2.8, 33, 0), V(-2.8, 26, 0)),
    Part.LineSegment(V(-2.8, 26, 0), V(0, 26, 0)),
    Part.LineSegment(V(0, 26, 0), V(0, 33, 0)),
    Part.LineSegment(V(0, 33, 0), V(-2.8, 33, 0)),
], False)
sketch13.addConstraint([
    Sketcher.Constraint("Coincident", 0, 2, 1, 1),
    Sketcher.Constraint("Coincident", 1, 2, 2, 1),
    Sketcher.Constraint("Coincident", 2, 2, 3, 1),
    Sketcher.Constraint("Coincident", 3, 2, 0, 1),
    Sketcher.Constraint("Vertical", 0),
    Sketcher.Constraint("Horizontal", 1),
    Sketcher.Constraint("Vertical", 2),
    Sketcher.Constraint("Horizontal", 3),
    Sketcher.Constraint("PointOnObject", 1, 2, -2),
    Sketcher.Constraint("DistanceY", 0, 2, 0, 1, 7.0),
    Sketcher.Constraint("DistanceY", -1, 1, 0, 2, 26.0),
    Sketcher.Constraint("DistanceX", 1, 1, 1, 2, 2.75),
])
pocket12 = doc.addObject("PartDesign::Pocket", "Pocket011")
body.addObject(pocket12)
pocket12.Profile = sketch13
pocket12.Length = 14

doc.recompute()
